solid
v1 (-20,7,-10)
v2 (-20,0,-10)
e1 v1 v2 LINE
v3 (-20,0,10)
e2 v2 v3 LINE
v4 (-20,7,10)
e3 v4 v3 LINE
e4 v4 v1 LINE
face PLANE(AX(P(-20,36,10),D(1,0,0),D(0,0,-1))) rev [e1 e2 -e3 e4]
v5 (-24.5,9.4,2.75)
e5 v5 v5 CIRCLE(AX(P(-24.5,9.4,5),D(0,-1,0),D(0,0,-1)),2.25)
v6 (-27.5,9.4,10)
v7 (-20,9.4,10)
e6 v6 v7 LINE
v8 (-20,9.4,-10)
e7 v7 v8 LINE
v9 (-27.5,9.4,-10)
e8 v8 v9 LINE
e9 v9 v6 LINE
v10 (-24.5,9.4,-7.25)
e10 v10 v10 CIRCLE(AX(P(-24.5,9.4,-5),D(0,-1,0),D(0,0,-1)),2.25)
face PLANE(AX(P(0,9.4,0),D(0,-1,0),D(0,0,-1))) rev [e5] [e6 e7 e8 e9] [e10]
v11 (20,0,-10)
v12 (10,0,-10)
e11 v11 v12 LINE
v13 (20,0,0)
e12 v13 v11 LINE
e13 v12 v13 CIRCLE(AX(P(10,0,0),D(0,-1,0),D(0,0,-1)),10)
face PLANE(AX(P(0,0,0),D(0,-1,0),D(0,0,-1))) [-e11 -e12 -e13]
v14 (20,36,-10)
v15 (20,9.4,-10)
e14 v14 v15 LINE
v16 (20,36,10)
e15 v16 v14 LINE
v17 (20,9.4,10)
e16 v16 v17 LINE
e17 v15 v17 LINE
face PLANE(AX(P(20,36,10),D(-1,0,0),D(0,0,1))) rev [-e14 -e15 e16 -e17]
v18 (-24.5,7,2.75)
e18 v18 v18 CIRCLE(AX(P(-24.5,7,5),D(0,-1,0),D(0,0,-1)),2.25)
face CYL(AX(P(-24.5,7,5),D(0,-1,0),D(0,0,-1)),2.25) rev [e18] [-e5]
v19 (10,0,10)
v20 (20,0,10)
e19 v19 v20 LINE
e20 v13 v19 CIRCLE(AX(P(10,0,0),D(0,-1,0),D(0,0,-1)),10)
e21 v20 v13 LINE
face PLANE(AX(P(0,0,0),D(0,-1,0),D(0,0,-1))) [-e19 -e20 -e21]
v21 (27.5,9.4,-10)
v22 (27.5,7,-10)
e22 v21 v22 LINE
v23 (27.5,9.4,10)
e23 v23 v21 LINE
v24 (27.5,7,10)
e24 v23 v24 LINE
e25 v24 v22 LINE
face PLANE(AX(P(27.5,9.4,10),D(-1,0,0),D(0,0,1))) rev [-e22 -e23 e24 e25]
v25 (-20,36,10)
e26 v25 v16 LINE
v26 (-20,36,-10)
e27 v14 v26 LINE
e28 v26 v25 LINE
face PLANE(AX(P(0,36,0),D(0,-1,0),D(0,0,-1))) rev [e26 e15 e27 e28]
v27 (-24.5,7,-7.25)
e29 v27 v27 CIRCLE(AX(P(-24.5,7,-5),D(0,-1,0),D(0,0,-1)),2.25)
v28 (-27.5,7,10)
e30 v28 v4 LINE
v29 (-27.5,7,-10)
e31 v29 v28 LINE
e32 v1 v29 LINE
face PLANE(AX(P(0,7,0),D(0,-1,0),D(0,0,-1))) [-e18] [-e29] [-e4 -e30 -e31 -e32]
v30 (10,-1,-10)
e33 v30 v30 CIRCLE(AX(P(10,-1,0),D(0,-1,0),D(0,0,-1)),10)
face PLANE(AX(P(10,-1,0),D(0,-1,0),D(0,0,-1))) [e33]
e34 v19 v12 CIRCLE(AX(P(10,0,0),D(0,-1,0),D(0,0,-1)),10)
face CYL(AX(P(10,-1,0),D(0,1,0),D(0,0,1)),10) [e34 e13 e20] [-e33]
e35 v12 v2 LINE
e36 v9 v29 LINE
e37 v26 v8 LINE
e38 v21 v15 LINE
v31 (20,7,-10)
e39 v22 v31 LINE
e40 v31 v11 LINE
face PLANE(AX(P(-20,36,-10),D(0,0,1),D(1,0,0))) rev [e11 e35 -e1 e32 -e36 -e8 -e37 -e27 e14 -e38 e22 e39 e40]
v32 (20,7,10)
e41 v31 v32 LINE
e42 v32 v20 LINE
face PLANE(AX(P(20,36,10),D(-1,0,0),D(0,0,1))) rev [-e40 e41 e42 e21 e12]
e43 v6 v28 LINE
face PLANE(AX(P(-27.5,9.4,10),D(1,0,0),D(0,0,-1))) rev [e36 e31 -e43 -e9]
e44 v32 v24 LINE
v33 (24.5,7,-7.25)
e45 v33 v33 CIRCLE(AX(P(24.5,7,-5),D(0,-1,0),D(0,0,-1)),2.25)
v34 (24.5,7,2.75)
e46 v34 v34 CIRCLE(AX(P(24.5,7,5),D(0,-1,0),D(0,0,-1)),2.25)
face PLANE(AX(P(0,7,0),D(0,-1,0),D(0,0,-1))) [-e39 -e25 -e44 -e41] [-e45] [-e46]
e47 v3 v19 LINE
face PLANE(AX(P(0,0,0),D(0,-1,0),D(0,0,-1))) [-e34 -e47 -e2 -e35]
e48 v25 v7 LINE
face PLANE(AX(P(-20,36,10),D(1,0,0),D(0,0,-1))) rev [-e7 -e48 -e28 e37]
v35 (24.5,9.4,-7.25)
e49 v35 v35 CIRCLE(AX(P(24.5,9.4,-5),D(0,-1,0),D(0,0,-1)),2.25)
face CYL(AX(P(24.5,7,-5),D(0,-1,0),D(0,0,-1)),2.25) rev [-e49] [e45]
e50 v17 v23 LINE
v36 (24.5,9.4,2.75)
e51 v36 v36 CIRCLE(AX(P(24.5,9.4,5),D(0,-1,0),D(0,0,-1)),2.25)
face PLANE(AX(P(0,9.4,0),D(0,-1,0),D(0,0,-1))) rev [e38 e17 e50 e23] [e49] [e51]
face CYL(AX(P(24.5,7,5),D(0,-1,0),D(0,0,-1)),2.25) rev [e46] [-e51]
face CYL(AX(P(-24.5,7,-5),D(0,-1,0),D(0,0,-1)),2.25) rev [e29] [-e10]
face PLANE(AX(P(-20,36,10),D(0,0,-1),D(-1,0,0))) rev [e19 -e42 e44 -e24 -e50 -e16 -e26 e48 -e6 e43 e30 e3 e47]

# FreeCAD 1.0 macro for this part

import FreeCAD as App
import Part
import Sketcher

V = App.Vector
Q = App.Units.Quantity


def add_polygon(sketch, points):
    """Adds a closed chain of lines whose ends are joined by coincident constraints."""
    first, n = sketch.GeometryCount, len(points)
    for a, b in zip(points, points[1:] + points[:1]):
        sketch.addGeometry(Part.LineSegment(App.Vector(*a, 0), App.Vector(*b, 0)), False)
    for i in range(n):
        sketch.addConstraint(Sketcher.Constraint("Coincident", first + i, 2, first + (i + 1) % n, 1))

doc = App.newDocument("Part")
params = doc.addObject("Spreadsheet::Sheet", "Params")
for row, (alias, value) in enumerate([
    ("sketch1_width", "40 mm"),
    ("sketch1_height", "20 mm"),
    ("pad1_length", "36 mm"),
    ("sketch2_width", "55 mm"),
    ("sketch2_height", "20 mm"),
    ("pad2_length", "2.4 mm"),
    ("sketch3_diameter", "4.5 mm"),
    ("hole_diameter", "4.5 mm"),
    ("sketch4_diameter", "20 mm"),
    ("pad3_length", "1 mm"),
], start=1):
    params.set(f"A{row}", alias)
    params.set(f"B{row}", "=" + value)
    params.setAlias(f"B{row}", alias)

body = doc.addObject("PartDesign::Body", "Body")

sketch1 = doc.addObject("Sketcher::SketchObject", "Sketch")
body.addObject(sketch1)
sketch1.AttachmentSupport = (doc.XZ_Plane, [""])
sketch1.MapMode = "FlatFace"
add_polygon(sketch1, [(-20, -10), (-20, 10), (20, 10), (20, -10)])
sketch1.addConstraint(Sketcher.Constraint("Vertical", 0))
sketch1.addConstraint(Sketcher.Constraint("Horizontal", 1))
sketch1.addConstraint(Sketcher.Constraint("Vertical", 2))
sketch1.addConstraint(Sketcher.Constraint("Horizontal", 3))
sketch1.addConstraint(Sketcher.Constraint("Symmetric", 0, 2, 2, 2, -1, 1))
sketch1.addConstraint(Sketcher.Constraint("DistanceX", 1, 1, 1, 2, Q("40 mm")))
sketch1.addConstraint(Sketcher.Constraint("DistanceY", 0, 1, 0, 2, Q("20 mm")))
sketch1.setExpression("Constraints[9]", "Params.sketch1_width")
sketch1.setExpression("Constraints[10]", "Params.sketch1_height")
pad1 = doc.addObject("PartDesign::Pad", "Pad")
body.addObject(pad1)
pad1.Profile = sketch1
pad1.setExpression("Length", "Params.pad1_length")
pad1.Reversed = True

sketch2 = doc.addObject("Sketcher::SketchObject", "Sketch001")
body.addObject(sketch2)
sketch2.AttachmentSupport = (doc.XZ_Plane, [""])
sketch2.MapMode = "FlatFace"
sketch2.AttachmentOffset = App.Placement(V(0, 0, -7), App.Rotation())
add_polygon(sketch2, [(-28, -10), (-28, 10), (28, 10), (28, -10)])
sketch2.addConstraint(Sketcher.Constraint("Vertical", 0))
sketch2.addConstraint(Sketcher.Constraint("Horizontal", 1))
sketch2.addConstraint(Sketcher.Constraint("Vertical", 2))
sketch2.addConstraint(Sketcher.Constraint("Horizontal", 3))
sketch2.addConstraint(Sketcher.Constraint("Symmetric", 0, 2, 2, 2, -1, 1))
sketch2.addConstraint(Sketcher.Constraint("DistanceX", 1, 1, 1, 2, Q("55 mm")))
sketch2.addConstraint(Sketcher.Constraint("DistanceY", 0, 1, 0, 2, Q("20 mm")))
sketch2.setExpression("Constraints[9]", "Params.sketch2_width")
sketch2.setExpression("Constraints[10]", "Params.sketch2_height")
pad2 = doc.addObject("PartDesign::Pad", "Pad001")
body.addObject(pad2)
pad2.Profile = sketch2
pad2.setExpression("Length", "Params.pad2_length")
pad2.Reversed = True

sketch3 = doc.addObject("Sketcher::SketchObject", "Sketch002")
body.addObject(sketch3)
sketch3.AttachmentSupport = (doc.XZ_Plane, [""])
sketch3.MapMode = "FlatFace"
sketch3.AttachmentOffset = App.Placement(V(0, 0, -7), App.Rotation())
sketch3.addGeometry(Part.Circle(V(24.5, -5, 0), V(0, 0, 1), 2.2), False)
sketch3.addGeometry(Part.Circle(V(24.5, 5, 0), V(0, 0, 1), 2.2), False)
sketch3.addConstraint(Sketcher.Constraint("Equal", 0, 1))
sketch3.addConstraint(Sketcher.Constraint("Symmetric", 0, 3, 1, 3, -1))
sketch3.addConstraint(Sketcher.Constraint("Diameter", 0, Q("4.5 mm")))
sketch3.addConstraint(Sketcher.Constraint("DistanceY", 0, 3, -1, 1, Q("5 mm")))
sketch3.addConstraint(Sketcher.Constraint("DistanceX", -1, 1, 0, 3, Q("24.5 mm")))
sketch3.setExpression("Constraints[2]", "Params.sketch3_diameter")
doc.recompute()
hole = doc.addObject("PartDesign::Hole", "Hole")
body.addObject(hole)
hole.Profile = sketch3
hole.ThreadType = "None"
hole.setExpression("Diameter", "Params.hole_diameter")
hole.DepthType = "ThroughAll"
doc.recompute()

mirrored = doc.addObject("PartDesign::Mirrored", "Mirrored")
body.addObject(mirrored)
mirrored.Originals = [hole]
mirrored.MirrorPlane = (doc.YZ_Plane, [""])
body.Tip = mirrored

sketch4 = doc.addObject("Sketcher::SketchObject", "Sketch003")
body.addObject(sketch4)
sketch4.AttachmentSupport = (doc.XZ_Plane, [""])
sketch4.MapMode = "FlatFace"
sketch4.addGeometry(Part.Circle(V(10, 0, 0), V(0, 0, 1), 10), False)
sketch4.addConstraint(Sketcher.Constraint("PointOnObject", 0, 3, -1))
sketch4.addConstraint(Sketcher.Constraint("Diameter", 0, Q("20 mm")))
sketch4.addConstraint(Sketcher.Constraint("DistanceX", -1, 1, 0, 3, Q("10 mm")))
sketch4.setExpression("Constraints[1]", "Params.sketch4_diameter")
pad3 = doc.addObject("PartDesign::Pad", "Pad002")
body.addObject(pad3)
pad3.Profile = sketch4
pad3.setExpression("Length", "Params.pad3_length")

doc.recompute()
